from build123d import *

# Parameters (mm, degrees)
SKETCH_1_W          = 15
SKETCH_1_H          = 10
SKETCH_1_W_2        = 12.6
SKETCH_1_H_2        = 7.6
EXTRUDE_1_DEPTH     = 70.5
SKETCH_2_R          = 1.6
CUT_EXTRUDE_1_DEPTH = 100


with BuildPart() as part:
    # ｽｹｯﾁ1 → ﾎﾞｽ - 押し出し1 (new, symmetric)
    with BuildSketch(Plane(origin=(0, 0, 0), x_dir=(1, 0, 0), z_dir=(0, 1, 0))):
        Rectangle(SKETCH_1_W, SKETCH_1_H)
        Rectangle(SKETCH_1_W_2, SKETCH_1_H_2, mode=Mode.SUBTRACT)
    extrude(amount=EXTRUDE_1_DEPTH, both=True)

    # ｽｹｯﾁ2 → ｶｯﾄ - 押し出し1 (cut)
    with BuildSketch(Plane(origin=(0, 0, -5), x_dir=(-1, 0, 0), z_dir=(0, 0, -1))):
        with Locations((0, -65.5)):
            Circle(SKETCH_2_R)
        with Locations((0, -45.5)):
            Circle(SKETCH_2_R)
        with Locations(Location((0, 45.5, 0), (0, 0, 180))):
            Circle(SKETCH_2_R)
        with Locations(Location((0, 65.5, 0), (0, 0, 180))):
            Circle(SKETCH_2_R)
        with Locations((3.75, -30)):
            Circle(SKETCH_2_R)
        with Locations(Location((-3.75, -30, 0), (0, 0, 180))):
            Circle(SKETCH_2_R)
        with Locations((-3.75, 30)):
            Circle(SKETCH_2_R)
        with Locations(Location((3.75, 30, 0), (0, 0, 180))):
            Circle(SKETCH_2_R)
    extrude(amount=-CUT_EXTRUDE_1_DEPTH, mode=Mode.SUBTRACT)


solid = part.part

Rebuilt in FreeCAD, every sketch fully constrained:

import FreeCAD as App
import Part
import Sketcher

doc = App.newDocument("Part")
params = doc.addObject("Spreadsheet::Sheet", "Params")
for row, (alias, value) in enumerate([
    ("sketch1_width", "15 mm"),
    ("sketch1_height", "10 mm"),
    ("sketch1_width2", "12.6 mm"),
    ("sketch1_height2", "7.6 mm"),
    ("pad1_length", "141 mm"),
    ("sketch2_diameter", "3.2 mm"),
    ("pocket1_length", "100 mm"),
], start=1):
    params.set(f"A{row}", alias)
    params.set(f"B{row}", "=" + value)
    params.setAlias(f"B{row}", alias)

body = doc.addObject("PartDesign::Body", "Body")

sketch1 = doc.addObject("Sketcher::SketchObject", "Sketch")
body.addObject(sketch1)
sketch1.AttachmentSupport = (doc.XZ_Plane, [""])
sketch1.MapMode = "FlatFace"
sketch1.addGeometry([
    Part.LineSegment(App.Vector(-8, -5, 0), App.Vector(-8, 5, 0)),
    Part.LineSegment(App.Vector(-8, 5, 0), App.Vector(8, 5, 0)),
    Part.LineSegment(App.Vector(8, 5, 0), App.Vector(8, -5, 0)),
    Part.LineSegment(App.Vector(8, -5, 0), App.Vector(-8, -5, 0)),
    Part.LineSegment(App.Vector(6, 4, 0), App.Vector(-6, 4, 0)),
    Part.LineSegment(App.Vector(-6, 4, 0), App.Vector(-6, -4, 0)),
    Part.LineSegment(App.Vector(-6, -4, 0), App.Vector(6, -4, 0)),
    Part.LineSegment(App.Vector(6, -4, 0), App.Vector(6, 4, 0)),
], False)
sketch1.addConstraint([
    Sketcher.Constraint("Coincident", 0, 2, 1, 1),
    Sketcher.Constraint("Coincident", 1, 2, 2, 1),
    Sketcher.Constraint("Coincident", 2, 2, 3, 1),
    Sketcher.Constraint("Coincident", 3, 2, 0, 1),
    Sketcher.Constraint("Coincident", 4, 2, 5, 1),
    Sketcher.Constraint("Coincident", 5, 2, 6, 1),
    Sketcher.Constraint("Coincident", 6, 2, 7, 1),
    Sketcher.Constraint("Coincident", 7, 2, 4, 1),
    Sketcher.Constraint("Vertical", 0),
    Sketcher.Constraint("Horizontal", 1),
    Sketcher.Constraint("Vertical", 2),
    Sketcher.Constraint("Horizontal", 3),
    Sketcher.Constraint("Horizontal", 4),
    Sketcher.Constraint("Vertical", 5),
    Sketcher.Constraint("Horizontal", 6),
    Sketcher.Constraint("Vertical", 7),
    Sketcher.Constraint("Symmetric", 0, 2, 2, 2, -1, 1),
    Sketcher.Constraint("Symmetric", 4, 2, 6, 2, -1, 1),
    Sketcher.Constraint("DistanceX", 1, 1, 1, 2, 15.0),
    Sketcher.Constraint("DistanceY", 0, 1, 0, 2, 10.0),
    Sketcher.Constraint("DistanceX", 4, 2, 4, 1, 12.6),
    Sketcher.Constraint("DistanceY", 5, 2, 5, 1, 7.6),
])
sketch1.setExpression("Constraints[18]", "Params.sketch1_width")
sketch1.setExpression("Constraints[19]", "Params.sketch1_height")
sketch1.setExpression("Constraints[20]", "Params.sketch1_width2")
sketch1.setExpression("Constraints[21]", "Params.sketch1_height2")
pad1 = doc.addObject("PartDesign::Pad", "Pad")
body.addObject(pad1)
pad1.Profile = sketch1
pad1.setExpression("Length", "Params.pad1_length")
pad1.Midplane = True

sketch2 = doc.addObject("Sketcher::SketchObject", "Sketch001")
body.addObject(sketch2)
sketch2.AttachmentSupport = (doc.XY_Plane, [""])
sketch2.MapMode = "FlatFace"
sketch2.AttachmentOffset = App.Placement(App.Vector(0, 0, -5), App.Rotation())
sketch2.addGeometry([
    Part.Circle(App.Vector(0, -65.5, 0), App.Vector(0, 0, 1), 1.6),
    Part.Circle(App.Vector(0, -45.5, 0), App.Vector(0, 0, 1), 1.6),
    Part.Circle(App.Vector(0, 45.5, 0), App.Vector(0, 0, 1), 1.6),
    Part.Circle(App.Vector(0, 65.5, 0), App.Vector(0, 0, 1), 1.6),
    Part.Circle(App.Vector(-3.8, -30, 0), App.Vector(0, 0, 1), 1.6),
    Part.Circle(App.Vector(3.8, -30, 0), App.Vector(0, 0, 1), 1.6),
    Part.Circle(App.Vector(3.8, 30, 0), App.Vector(0, 0, 1), 1.6),
    Part.Circle(App.Vector(-3.8, 30, 0), App.Vector(0, 0, 1), 1.6),
], False)
sketch2.addConstraint([
    Sketcher.Constraint("Equal", 0, 1),
    Sketcher.Constraint("Equal", 1, 2),
    Sketcher.Constraint("Equal", 2, 3),
    Sketcher.Constraint("Equal", 3, 4),
    Sketcher.Constraint("Equal", 4, 5),
    Sketcher.Constraint("Equal", 5, 6),
    Sketcher.Constraint("Equal", 6, 7),
    Sketcher.Constraint("Symmetric", 1, 3, 2, 3, -1, 1),
    Sketcher.Constraint("Symmetric", 0, 3, 3, 3, -1, 1),
    Sketcher.Constraint("Symmetric", 4, 3, 6, 3, -1, 1),
    Sketcher.Constraint("Symmetric", 5, 3, 7, 3, -1, 1),
    Sketcher.Constraint("Symmetric", 4, 3, 5, 3, -2),
    Sketcher.Constraint("PointOnObject", 0, 3, -2),
    Sketcher.Constraint("PointOnObject", 1, 3, -2),
    Sketcher.Constraint("Diameter", 0, 3.2),
    Sketcher.Constraint("DistanceY", 4, 3, -1, 1, 30.0),
    Sketcher.Constraint("DistanceY", 0, 3, 1, 3, 20.0),
    Sketcher.Constraint("DistanceY", 1, 3, 2, 3, 91.0),
    Sketcher.Constraint("DistanceX", 4, 3, 5, 3, 7.5),
])
sketch2.setExpression("Constraints[14]", "Params.sketch2_diameter")
pocket1 = doc.addObject("PartDesign::Pocket", "Pocket")
body.addObject(pocket1)
pocket1.Profile = sketch2
pocket1.setExpression("Length", "Params.pocket1_length")
pocket1.Reversed = True

doc.recompute()
